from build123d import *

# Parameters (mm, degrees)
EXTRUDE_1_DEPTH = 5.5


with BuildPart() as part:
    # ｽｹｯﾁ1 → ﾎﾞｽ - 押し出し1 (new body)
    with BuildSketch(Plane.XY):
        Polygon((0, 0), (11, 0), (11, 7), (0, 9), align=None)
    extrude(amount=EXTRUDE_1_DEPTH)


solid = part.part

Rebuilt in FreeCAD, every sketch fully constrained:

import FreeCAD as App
import Part
import Sketcher

V = App.Vector

doc = App.newDocument("Part")
params = doc.addObject("Spreadsheet::Sheet", "Params")
for row, (alias, value) in enumerate([
    ("sketch1_width", "11 mm"),
    ("sketch1_height", "7 mm"),
    ("sketch1_height2", "9 mm"),
    ("pad1_length", "5.5 mm"),
], start=1):
    params.set(f"A{row}", alias)
    params.set(f"B{row}", "=" + value)
    params.setAlias(f"B{row}", alias)

body = doc.addObject("PartDesign::Body", "Body")

# Sketch on XY plane
sketch1 = body.newObject("Sketcher::SketchObject", "Sketch")
sketch1.AttachmentSupport = (doc.getObject("XY_Plane"), [""])
sketch1.MapMode = "FlatFace"
sketch1.addGeometry(Part.LineSegment(V(0, 0, 0), V(11, 0, 0)), False)
sketch1.addGeometry(Part.LineSegment(V(11, 0, 0), V(11, 7, 0)), False)
sketch1.addGeometry(Part.LineSegment(V(11, 7, 0), V(0, 9, 0)), False)
sketch1.addGeometry(Part.LineSegment(V(0, 9, 0), V(0, 0, 0)), False)
sketch1.addConstraint(Sketcher.Constraint("Coincident", 0, 2, 1, 1))
sketch1.addConstraint(Sketcher.Constraint("Coincident", 1, 2, 2, 1))
sketch1.addConstraint(Sketcher.Constraint("Coincident", 2, 2, 3, 1))
sketch1.addConstraint(Sketcher.Constraint("Coincident", 3, 2, 0, 1))
sketch1.addConstraint(Sketcher.Constraint("Horizontal", 0))
sketch1.addConstraint(Sketcher.Constraint("Vertical", 1))
sketch1.addConstraint(Sketcher.Constraint("Vertical", 3))
sketch1.addConstraint(Sketcher.Constraint("Coincident", 3, 2, -1, 1))
sketch1.addConstraint(Sketcher.Constraint("DistanceX", 0, 1, 0, 2, 11.0))
sketch1.addConstraint(Sketcher.Constraint("DistanceY", 1, 1, 1, 2, 7.0))
sketch1.addConstraint(Sketcher.Constraint("DistanceY", 3, 2, 3, 1, 9.0))
sketch1.setExpression("Constraints[8]", "Params.sketch1_width")
sketch1.setExpression("Constraints[9]", "Params.sketch1_height")
sketch1.setExpression("Constraints[10]", "Params.sketch1_height2")
pad1 = body.newObject("PartDesign::Pad", "Pad")
pad1.Profile = sketch1
pad1.setExpression("Length", "Params.pad1_length")

doc.recompute()
